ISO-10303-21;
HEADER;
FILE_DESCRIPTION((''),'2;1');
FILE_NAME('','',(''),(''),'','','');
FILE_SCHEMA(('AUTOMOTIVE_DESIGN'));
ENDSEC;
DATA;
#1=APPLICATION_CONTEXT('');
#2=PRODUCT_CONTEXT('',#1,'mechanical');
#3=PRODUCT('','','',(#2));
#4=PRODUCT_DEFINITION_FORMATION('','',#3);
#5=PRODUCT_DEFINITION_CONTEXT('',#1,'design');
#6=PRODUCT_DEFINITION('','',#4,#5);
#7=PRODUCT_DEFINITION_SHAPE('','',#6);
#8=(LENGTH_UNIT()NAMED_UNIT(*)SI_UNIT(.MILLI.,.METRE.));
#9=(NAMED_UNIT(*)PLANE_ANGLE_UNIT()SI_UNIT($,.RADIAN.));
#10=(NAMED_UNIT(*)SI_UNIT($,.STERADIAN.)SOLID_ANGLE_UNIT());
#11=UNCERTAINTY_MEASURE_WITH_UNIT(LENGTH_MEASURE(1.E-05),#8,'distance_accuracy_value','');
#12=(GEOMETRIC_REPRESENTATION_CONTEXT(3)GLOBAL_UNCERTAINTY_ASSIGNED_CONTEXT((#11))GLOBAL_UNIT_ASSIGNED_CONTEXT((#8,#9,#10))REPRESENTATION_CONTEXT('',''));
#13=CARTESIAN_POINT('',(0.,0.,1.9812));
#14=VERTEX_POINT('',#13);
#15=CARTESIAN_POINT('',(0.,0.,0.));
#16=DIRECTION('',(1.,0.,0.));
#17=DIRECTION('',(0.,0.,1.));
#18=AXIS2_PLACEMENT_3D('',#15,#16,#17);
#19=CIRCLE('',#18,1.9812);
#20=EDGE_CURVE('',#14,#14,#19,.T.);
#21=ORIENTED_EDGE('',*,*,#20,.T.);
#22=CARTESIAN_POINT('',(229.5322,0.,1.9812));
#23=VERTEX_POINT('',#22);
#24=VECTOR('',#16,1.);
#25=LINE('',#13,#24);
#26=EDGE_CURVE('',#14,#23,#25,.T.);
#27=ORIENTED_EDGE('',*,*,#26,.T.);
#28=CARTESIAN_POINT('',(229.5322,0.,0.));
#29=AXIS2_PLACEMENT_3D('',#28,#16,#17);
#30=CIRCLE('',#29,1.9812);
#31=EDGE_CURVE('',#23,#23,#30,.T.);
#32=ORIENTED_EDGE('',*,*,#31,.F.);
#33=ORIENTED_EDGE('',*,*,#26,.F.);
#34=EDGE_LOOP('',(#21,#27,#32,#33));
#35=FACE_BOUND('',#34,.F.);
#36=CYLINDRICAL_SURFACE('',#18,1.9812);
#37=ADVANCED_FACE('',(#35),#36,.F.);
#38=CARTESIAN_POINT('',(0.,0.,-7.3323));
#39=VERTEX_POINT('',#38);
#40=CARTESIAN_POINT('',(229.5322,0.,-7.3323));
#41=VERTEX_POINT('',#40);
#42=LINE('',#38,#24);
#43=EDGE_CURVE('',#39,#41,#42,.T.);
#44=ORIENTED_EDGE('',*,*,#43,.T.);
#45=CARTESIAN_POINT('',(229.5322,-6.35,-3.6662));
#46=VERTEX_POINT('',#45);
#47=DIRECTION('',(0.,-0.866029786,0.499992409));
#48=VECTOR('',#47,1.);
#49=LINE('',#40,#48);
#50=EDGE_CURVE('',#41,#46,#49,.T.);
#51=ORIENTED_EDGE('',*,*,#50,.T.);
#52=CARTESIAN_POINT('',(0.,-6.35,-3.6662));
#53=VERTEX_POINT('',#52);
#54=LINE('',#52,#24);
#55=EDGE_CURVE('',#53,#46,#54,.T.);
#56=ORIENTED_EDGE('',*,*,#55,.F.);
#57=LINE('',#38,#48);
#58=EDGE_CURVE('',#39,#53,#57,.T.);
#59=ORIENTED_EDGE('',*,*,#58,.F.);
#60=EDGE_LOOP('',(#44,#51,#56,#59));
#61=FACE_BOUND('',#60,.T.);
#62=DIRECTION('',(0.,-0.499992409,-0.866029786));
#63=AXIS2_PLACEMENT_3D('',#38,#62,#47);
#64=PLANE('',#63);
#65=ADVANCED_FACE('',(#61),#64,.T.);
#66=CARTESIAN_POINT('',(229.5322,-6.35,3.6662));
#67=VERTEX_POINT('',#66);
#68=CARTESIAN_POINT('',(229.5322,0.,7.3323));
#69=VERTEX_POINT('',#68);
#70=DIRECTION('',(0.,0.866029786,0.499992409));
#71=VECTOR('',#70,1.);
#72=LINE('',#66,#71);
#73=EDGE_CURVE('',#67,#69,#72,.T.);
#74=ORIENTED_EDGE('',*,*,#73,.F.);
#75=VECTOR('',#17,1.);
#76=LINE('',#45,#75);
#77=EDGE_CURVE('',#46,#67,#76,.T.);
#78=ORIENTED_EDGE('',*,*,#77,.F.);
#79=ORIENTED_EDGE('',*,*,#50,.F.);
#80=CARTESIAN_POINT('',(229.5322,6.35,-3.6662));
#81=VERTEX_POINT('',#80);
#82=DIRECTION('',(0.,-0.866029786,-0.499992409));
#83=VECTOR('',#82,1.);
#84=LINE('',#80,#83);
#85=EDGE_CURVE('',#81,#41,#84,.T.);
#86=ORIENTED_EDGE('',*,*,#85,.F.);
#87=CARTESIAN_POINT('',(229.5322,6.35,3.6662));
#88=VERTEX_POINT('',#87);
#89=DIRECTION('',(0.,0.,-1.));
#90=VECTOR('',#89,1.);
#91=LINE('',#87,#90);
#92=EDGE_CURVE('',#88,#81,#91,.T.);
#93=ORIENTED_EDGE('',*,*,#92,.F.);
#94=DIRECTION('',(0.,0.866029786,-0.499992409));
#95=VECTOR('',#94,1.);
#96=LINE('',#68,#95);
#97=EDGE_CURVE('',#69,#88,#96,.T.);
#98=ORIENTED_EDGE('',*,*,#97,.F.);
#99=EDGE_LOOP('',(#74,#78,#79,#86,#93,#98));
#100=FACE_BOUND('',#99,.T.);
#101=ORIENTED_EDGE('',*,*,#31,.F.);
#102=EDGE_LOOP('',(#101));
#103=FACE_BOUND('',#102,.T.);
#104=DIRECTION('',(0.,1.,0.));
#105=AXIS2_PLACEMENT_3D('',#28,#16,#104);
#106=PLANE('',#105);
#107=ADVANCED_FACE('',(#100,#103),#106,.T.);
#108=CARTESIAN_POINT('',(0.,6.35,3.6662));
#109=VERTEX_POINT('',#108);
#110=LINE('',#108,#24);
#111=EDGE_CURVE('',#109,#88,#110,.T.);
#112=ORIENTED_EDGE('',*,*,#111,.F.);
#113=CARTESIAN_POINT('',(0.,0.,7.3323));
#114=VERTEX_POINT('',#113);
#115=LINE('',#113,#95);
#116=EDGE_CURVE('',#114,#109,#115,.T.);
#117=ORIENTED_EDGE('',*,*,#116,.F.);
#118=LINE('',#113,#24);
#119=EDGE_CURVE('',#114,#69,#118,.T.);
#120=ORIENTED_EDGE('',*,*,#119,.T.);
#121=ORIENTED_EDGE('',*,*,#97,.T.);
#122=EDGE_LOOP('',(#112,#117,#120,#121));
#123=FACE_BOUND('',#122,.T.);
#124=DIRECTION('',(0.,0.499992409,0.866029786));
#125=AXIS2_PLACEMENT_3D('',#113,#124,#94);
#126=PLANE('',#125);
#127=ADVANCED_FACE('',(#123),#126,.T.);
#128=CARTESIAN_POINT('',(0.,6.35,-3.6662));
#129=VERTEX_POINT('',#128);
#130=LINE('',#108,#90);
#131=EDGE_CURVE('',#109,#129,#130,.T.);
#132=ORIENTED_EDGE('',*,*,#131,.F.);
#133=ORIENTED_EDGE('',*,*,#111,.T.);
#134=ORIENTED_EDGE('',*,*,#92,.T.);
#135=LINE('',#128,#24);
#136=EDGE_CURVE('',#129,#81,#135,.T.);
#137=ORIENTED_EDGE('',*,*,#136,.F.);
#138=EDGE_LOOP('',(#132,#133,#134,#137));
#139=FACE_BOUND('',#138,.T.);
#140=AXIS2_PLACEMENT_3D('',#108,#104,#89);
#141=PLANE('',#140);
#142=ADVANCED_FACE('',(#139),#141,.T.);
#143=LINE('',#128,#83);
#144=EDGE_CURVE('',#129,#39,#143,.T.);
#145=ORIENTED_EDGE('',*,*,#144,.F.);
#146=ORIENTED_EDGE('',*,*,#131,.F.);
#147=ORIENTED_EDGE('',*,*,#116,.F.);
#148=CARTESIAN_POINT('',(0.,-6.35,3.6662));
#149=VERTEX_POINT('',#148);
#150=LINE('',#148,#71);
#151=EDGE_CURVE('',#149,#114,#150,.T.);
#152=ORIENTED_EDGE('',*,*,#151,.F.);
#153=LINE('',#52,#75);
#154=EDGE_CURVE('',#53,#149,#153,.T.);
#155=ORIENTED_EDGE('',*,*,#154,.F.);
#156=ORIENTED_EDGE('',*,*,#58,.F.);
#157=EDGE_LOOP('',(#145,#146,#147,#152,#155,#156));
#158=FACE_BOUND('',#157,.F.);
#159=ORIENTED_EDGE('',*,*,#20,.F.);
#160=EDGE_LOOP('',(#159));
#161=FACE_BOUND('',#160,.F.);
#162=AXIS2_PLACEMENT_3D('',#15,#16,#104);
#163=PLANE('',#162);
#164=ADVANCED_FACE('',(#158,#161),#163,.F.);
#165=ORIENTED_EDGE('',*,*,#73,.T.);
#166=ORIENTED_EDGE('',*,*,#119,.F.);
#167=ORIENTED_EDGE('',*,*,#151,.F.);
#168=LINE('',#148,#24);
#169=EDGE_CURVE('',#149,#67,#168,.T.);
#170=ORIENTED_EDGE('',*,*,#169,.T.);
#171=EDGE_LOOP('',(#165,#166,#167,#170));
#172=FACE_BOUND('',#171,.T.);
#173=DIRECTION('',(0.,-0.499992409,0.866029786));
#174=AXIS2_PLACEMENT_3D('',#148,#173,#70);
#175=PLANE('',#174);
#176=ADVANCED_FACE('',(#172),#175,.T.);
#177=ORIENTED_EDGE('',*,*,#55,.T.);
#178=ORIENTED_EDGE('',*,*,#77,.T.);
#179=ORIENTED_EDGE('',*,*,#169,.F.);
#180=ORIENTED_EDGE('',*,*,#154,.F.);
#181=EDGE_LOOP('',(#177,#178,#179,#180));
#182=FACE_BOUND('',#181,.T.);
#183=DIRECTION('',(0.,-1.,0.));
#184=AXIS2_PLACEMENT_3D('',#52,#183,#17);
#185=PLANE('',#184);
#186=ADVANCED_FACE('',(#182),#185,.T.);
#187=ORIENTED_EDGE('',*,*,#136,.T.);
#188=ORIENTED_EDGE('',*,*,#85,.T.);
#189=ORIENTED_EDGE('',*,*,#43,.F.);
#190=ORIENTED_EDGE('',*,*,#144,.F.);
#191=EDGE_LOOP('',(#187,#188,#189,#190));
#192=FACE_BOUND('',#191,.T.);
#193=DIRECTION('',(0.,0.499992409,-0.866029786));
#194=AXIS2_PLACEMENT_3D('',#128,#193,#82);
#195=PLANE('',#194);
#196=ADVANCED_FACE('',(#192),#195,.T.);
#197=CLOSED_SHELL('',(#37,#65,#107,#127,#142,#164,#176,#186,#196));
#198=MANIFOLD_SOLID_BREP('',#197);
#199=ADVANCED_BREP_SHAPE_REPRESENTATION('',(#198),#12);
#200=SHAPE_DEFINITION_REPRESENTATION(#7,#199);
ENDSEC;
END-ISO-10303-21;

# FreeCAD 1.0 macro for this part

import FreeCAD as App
import Part
import Sketcher
Q = App.Units.Quantity


def add_polygon(sketch, points):
    """Adds a closed chain of lines whose ends are joined by coincident constraints."""
    first, n = sketch.GeometryCount, len(points)
    for a, b in zip(points, points[1:] + points[:1]):
        sketch.addGeometry(Part.LineSegment(App.Vector(*a, 0), App.Vector(*b, 0)), False)
    for i in range(n):
        sketch.addConstraint(Sketcher.Constraint("Coincident", first + i, 2, first + (i + 1) % n, 1))

doc = App.newDocument("Part")
body = doc.addObject("PartDesign::Body", "Body")

# Sketch on YZ plane
sketch1 = body.newObject("Sketcher::SketchObject", "Sketch")
sketch1.AttachmentSupport = (doc.getObject("YZ_Plane"), [""])
sketch1.MapMode = "FlatFace"
add_polygon(sketch1, [(-6, 4), (-6, -4), (0, -7), (6, -4), (6, 4), (0, 7)])  # lines 0-5
sketch1.addConstraint([
    Sketcher.Constraint("Vertical", 0),
    Sketcher.Constraint("Vertical", 3),
    Sketcher.Constraint("Symmetric", 0, 2, 3, 2, -1, 1),
    Sketcher.Constraint("Symmetric", 1, 2, 4, 2, -1, 1),
    Sketcher.Constraint("PointOnObject", 1, 2, -2),
    Sketcher.Constraint("Parallel", 2, 5),
    Sketcher.Constraint("Horizontal", 0, 2, 2, 2),
    Sketcher.Constraint("DistanceX", 0, 2, 2, 2, Q("0.5 in")),
    Sketcher.Constraint("Angle", 1, Q("-29.9995 deg")),
    Sketcher.Constraint("DistanceY", 1, 2, 3, 2, Q("0.433 in")),
])
pad1 = body.newObject("PartDesign::Pad", "Pad")
pad1.Profile = sketch1
pad1.Length = Q("9.0367008 in")

# Sketch on YZ plane
sketch2 = body.newObject("Sketcher::SketchObject", "Sketch001")
sketch2.AttachmentSupport = (doc.getObject("YZ_Plane"), [""])
sketch2.MapMode = "FlatFace"
sketch2.addGeometry(Part.Circle(App.Vector(0, 0, 0), App.Vector(0, 0, 1), 2), False)
sketch2.addConstraint([
    Sketcher.Constraint("Coincident", 0, 3, -1, 1),
    Sketcher.Constraint("Diameter", 0, Q("0.156 in")),
])
doc.recompute()
hole = body.newObject("PartDesign::Hole", "Hole")
hole.Profile = sketch2
hole.ThreadType = "None"
hole.Diameter = Q("0.156 in")
hole.DepthType = "ThroughAll"
hole.Reversed = True

doc.recompute()
